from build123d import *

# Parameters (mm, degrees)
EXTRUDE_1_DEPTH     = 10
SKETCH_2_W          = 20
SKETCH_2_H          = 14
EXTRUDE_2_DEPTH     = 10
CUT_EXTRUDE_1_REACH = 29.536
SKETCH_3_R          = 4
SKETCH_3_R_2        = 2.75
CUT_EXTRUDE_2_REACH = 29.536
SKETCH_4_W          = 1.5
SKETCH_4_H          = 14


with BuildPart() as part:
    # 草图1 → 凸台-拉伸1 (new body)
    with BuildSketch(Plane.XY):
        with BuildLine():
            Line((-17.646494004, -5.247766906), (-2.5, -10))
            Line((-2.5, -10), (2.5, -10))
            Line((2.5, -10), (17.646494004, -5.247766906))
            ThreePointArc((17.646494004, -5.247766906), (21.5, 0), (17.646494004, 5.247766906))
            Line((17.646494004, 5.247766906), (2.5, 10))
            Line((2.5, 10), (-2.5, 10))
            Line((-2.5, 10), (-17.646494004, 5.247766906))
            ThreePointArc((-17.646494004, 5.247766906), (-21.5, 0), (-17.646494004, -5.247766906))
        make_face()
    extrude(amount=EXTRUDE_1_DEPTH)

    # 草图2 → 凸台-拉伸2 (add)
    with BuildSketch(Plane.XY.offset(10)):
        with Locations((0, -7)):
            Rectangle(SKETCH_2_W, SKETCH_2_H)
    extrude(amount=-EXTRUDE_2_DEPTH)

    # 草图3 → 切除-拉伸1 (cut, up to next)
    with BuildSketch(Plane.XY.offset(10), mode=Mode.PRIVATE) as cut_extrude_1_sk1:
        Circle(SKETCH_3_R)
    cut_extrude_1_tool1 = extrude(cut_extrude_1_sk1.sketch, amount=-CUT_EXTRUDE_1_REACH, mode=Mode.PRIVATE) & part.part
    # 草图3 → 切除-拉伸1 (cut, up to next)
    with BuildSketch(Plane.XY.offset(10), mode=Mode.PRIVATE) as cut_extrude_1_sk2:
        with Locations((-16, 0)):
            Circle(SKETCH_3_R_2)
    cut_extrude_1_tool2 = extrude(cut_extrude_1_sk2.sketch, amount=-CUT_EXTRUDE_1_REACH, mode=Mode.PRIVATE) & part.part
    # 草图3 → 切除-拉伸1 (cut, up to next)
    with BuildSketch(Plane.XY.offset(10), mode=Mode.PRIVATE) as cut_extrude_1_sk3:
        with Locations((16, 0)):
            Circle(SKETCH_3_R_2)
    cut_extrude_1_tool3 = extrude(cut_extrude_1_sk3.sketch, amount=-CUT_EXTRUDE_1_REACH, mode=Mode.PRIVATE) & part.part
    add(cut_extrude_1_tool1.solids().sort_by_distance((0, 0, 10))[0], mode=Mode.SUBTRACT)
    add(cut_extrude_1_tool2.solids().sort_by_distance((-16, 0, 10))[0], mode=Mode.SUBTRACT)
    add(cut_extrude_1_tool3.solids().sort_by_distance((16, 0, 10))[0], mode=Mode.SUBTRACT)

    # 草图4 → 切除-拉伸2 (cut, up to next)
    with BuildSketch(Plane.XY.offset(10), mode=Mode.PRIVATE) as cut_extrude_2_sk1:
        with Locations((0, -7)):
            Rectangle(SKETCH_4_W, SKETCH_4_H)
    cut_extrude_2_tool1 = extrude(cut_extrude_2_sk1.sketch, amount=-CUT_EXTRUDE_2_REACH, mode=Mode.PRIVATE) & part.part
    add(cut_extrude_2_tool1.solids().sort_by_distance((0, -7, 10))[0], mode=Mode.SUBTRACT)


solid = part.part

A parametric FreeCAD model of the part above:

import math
import FreeCAD as App
import Part
import Sketcher

V = App.Vector
Q = App.Units.Quantity

doc = App.newDocument("Part")
body = doc.addObject("PartDesign::Body", "Body")

sketch1 = body.newObject("Sketcher::SketchObject", "Sketch")
sketch1.AttachmentSupport = (doc.getObject("XY_Plane"), [""])
sketch1.MapMode = "FlatFace"
sketch1.addGeometry([
    Part.LineSegment(V(-18, -5, 0), V(-2, -10, 0)),
    Part.LineSegment(V(-2, -10, 0), V(2, -10, 0)),
    Part.LineSegment(V(2, -10, 0), V(18, -5, 0)),
    Part.ArcOfCircle(Part.Circle(V(16, 0, 0), V(0, 0, 1), 6), math.radians(-73), math.radians(73)),
    Part.LineSegment(V(18, 5, 0), V(2, 10, 0)),
    Part.LineSegment(V(2, 10, 0), V(-2, 10, 0)),
    Part.LineSegment(V(-2, 10, 0), V(-18, 5, 0)),
    Part.ArcOfCircle(Part.Circle(V(-16, 0, 0), V(0, 0, 1), 6), math.radians(107), math.radians(253)),
], False)
sketch1.addConstraint([
    Sketcher.Constraint("Coincident", 0, 2, 1, 1),
    Sketcher.Constraint("Coincident", 1, 2, 2, 1),
    Sketcher.Constraint("Tangent", 2, 2, 3, 1),
    Sketcher.Constraint("Tangent", 3, 2, 4, 1),
    Sketcher.Constraint("Coincident", 4, 2, 5, 1),
    Sketcher.Constraint("Coincident", 5, 2, 6, 1),
    Sketcher.Constraint("Tangent", 6, 2, 7, 1),
    Sketcher.Constraint("Tangent", 7, 2, 0, 1),
    Sketcher.Constraint("Horizontal", 1),
    Sketcher.Constraint("Horizontal", 5),
    Sketcher.Constraint("Equal", 3, 7),
    Sketcher.Constraint("Symmetric", 3, 3, 7, 3, -1, 1),
    Sketcher.Constraint("Symmetric", 0, 2, 4, 2, -1, 1),
    Sketcher.Constraint("Symmetric", 3, 2, 6, 2, -2),
    Sketcher.Constraint("Parallel", 2, 6),
    Sketcher.Constraint("Radius", 3, Q("5.5 mm")),
    Sketcher.Constraint("DistanceX", 1, 1, 1, 2, Q("5 mm")),
    Sketcher.Constraint("DistanceX", -1, 1, 3, 3, Q("16 mm")),
    Sketcher.Constraint("DistanceY", 0, 2, -1, 1, Q("10 mm")),
])
pad1 = body.newObject("PartDesign::Pad", "Pad")
pad1.Profile = sketch1
pad1.Length = 10

sketch2 = body.newObject("Sketcher::SketchObject", "Sketch001")
sketch2.AttachmentSupport = (doc.getObject("XY_Plane"), [""])
sketch2.MapMode = "FlatFace"
sketch2.AttachmentOffset = App.Placement(V(0, 0, 10), App.Rotation())
sketch2.addGeometry([
    Part.LineSegment(V(-10, 0, 0), V(-10, -14, 0)),
    Part.LineSegment(V(-10, -14, 0), V(10, -14, 0)),
    Part.LineSegment(V(10, -14, 0), V(10, 0, 0)),
    Part.LineSegment(V(10, 0, 0), V(-10, 0, 0)),
], False)
sketch2.addConstraint([
    Sketcher.Constraint("Coincident", 0, 2, 1, 1),
    Sketcher.Constraint("Coincident", 1, 2, 2, 1),
    Sketcher.Constraint("Coincident", 2, 2, 3, 1),
    Sketcher.Constraint("Coincident", 3, 2, 0, 1),
    Sketcher.Constraint("Vertical", 0),
    Sketcher.Constraint("Horizontal", 1),
    Sketcher.Constraint("Vertical", 2),
    Sketcher.Constraint("Horizontal", 3),
    Sketcher.Constraint("Symmetric", 2, 2, 3, 2, -1, 1),
    Sketcher.Constraint("DistanceX", 1, 1, 1, 2, Q("20 mm")),
    Sketcher.Constraint("DistanceY", 0, 2, 0, 1, Q("14 mm")),
])
pad2 = body.newObject("PartDesign::Pad", "Pad001")
pad2.Profile = sketch2
pad2.Length = 10
pad2.Reversed = True

sketch3 = body.newObject("Sketcher::SketchObject", "Sketch002")
sketch3.AttachmentSupport = (doc.getObject("XY_Plane"), [""])
sketch3.MapMode = "FlatFace"
sketch3.AttachmentOffset = App.Placement(V(0, 0, 10), App.Rotation())
sketch3.addGeometry(Part.Circle(V(0, 0, 0), V(0, 0, 1), 4), False)
sketch3.addConstraint([
    Sketcher.Constraint("Coincident", 0, 3, -1, 1),
    Sketcher.Constraint("Diameter", 0, Q("8 mm")),
])
pocket1 = body.newObject("PartDesign::Pocket", "Pocket")
pocket1.Profile = sketch3
pocket1.Type = "UpToFirst"

sketch4 = body.newObject("Sketcher::SketchObject", "Sketch003")
sketch4.AttachmentSupport = (doc.getObject("XY_Plane"), [""])
sketch4.MapMode = "FlatFace"
sketch4.AttachmentOffset = App.Placement(V(0, 0, 10), App.Rotation())
sketch4.addGeometry(Part.Circle(V(-16, 0, 0), V(0, 0, 1), 2.8), False)
sketch4.addConstraint([
    Sketcher.Constraint("PointOnObject", 0, 3, -1),
    Sketcher.Constraint("Diameter", 0, Q("5.5 mm")),
    Sketcher.Constraint("DistanceX", 0, 3, -1, 1, Q("16 mm")),
])
pocket2 = body.newObject("PartDesign::Pocket", "Pocket001")
pocket2.Profile = sketch4
pocket2.Type = "UpToFirst"

sketch5 = body.newObject("Sketcher::SketchObject", "Sketch004")
sketch5.AttachmentSupport = (doc.getObject("XY_Plane"), [""])
sketch5.MapMode = "FlatFace"
sketch5.AttachmentOffset = App.Placement(V(0, 0, 10), App.Rotation())
sketch5.addGeometry(Part.Circle(V(16, 0, 0), V(0, 0, 1), 2.8), False)
sketch5.addConstraint([
    Sketcher.Constraint("PointOnObject", 0, 3, -1),
    Sketcher.Constraint("Diameter", 0, Q("5.5 mm")),
    Sketcher.Constraint("DistanceX", -1, 1, 0, 3, Q("16 mm")),
])
pocket3 = body.newObject("PartDesign::Pocket", "Pocket002")
pocket3.Profile = sketch5
pocket3.Type = "UpToFirst"

sketch6 = body.newObject("Sketcher::SketchObject", "Sketch005")
sketch6.AttachmentSupport = (doc.getObject("XY_Plane"), [""])
sketch6.MapMode = "FlatFace"
sketch6.AttachmentOffset = App.Placement(V(0, 0, 10), App.Rotation())
sketch6.addGeometry([
    Part.LineSegment(V(-0.8, 0, 0), V(-0.8, -14, 0)),
    Part.LineSegment(V(-0.8, -14, 0), V(0.8, -14, 0)),
    Part.LineSegment(V(0.8, -14, 0), V(0.8, 0, 0)),
    Part.LineSegment(V(0.8, 0, 0), V(-0.8, 0, 0)),
], False)
sketch6.addConstraint([
    Sketcher.Constraint("Coincident", 0, 2, 1, 1),
    Sketcher.Constraint("Coincident", 1, 2, 2, 1),
    Sketcher.Constraint("Coincident", 2, 2, 3, 1),
    Sketcher.Constraint("Coincident", 3, 2, 0, 1),
    Sketcher.Constraint("Vertical", 0),
    Sketcher.Constraint("Horizontal", 1),
    Sketcher.Constraint("Vertical", 2),
    Sketcher.Constraint("Horizontal", 3),
    Sketcher.Constraint("Symmetric", 2, 2, 3, 2, -1, 1),
    Sketcher.Constraint("DistanceY", 0, 2, 0, 1, Q("14 mm")),
    Sketcher.Constraint("DistanceX", 1, 1, 1, 2, Q("1.5 mm")),
])
pocket4 = body.newObject("PartDesign::Pocket", "Pocket003")
pocket4.Profile = sketch6
pocket4.Type = "UpToFirst"

doc.recompute()
